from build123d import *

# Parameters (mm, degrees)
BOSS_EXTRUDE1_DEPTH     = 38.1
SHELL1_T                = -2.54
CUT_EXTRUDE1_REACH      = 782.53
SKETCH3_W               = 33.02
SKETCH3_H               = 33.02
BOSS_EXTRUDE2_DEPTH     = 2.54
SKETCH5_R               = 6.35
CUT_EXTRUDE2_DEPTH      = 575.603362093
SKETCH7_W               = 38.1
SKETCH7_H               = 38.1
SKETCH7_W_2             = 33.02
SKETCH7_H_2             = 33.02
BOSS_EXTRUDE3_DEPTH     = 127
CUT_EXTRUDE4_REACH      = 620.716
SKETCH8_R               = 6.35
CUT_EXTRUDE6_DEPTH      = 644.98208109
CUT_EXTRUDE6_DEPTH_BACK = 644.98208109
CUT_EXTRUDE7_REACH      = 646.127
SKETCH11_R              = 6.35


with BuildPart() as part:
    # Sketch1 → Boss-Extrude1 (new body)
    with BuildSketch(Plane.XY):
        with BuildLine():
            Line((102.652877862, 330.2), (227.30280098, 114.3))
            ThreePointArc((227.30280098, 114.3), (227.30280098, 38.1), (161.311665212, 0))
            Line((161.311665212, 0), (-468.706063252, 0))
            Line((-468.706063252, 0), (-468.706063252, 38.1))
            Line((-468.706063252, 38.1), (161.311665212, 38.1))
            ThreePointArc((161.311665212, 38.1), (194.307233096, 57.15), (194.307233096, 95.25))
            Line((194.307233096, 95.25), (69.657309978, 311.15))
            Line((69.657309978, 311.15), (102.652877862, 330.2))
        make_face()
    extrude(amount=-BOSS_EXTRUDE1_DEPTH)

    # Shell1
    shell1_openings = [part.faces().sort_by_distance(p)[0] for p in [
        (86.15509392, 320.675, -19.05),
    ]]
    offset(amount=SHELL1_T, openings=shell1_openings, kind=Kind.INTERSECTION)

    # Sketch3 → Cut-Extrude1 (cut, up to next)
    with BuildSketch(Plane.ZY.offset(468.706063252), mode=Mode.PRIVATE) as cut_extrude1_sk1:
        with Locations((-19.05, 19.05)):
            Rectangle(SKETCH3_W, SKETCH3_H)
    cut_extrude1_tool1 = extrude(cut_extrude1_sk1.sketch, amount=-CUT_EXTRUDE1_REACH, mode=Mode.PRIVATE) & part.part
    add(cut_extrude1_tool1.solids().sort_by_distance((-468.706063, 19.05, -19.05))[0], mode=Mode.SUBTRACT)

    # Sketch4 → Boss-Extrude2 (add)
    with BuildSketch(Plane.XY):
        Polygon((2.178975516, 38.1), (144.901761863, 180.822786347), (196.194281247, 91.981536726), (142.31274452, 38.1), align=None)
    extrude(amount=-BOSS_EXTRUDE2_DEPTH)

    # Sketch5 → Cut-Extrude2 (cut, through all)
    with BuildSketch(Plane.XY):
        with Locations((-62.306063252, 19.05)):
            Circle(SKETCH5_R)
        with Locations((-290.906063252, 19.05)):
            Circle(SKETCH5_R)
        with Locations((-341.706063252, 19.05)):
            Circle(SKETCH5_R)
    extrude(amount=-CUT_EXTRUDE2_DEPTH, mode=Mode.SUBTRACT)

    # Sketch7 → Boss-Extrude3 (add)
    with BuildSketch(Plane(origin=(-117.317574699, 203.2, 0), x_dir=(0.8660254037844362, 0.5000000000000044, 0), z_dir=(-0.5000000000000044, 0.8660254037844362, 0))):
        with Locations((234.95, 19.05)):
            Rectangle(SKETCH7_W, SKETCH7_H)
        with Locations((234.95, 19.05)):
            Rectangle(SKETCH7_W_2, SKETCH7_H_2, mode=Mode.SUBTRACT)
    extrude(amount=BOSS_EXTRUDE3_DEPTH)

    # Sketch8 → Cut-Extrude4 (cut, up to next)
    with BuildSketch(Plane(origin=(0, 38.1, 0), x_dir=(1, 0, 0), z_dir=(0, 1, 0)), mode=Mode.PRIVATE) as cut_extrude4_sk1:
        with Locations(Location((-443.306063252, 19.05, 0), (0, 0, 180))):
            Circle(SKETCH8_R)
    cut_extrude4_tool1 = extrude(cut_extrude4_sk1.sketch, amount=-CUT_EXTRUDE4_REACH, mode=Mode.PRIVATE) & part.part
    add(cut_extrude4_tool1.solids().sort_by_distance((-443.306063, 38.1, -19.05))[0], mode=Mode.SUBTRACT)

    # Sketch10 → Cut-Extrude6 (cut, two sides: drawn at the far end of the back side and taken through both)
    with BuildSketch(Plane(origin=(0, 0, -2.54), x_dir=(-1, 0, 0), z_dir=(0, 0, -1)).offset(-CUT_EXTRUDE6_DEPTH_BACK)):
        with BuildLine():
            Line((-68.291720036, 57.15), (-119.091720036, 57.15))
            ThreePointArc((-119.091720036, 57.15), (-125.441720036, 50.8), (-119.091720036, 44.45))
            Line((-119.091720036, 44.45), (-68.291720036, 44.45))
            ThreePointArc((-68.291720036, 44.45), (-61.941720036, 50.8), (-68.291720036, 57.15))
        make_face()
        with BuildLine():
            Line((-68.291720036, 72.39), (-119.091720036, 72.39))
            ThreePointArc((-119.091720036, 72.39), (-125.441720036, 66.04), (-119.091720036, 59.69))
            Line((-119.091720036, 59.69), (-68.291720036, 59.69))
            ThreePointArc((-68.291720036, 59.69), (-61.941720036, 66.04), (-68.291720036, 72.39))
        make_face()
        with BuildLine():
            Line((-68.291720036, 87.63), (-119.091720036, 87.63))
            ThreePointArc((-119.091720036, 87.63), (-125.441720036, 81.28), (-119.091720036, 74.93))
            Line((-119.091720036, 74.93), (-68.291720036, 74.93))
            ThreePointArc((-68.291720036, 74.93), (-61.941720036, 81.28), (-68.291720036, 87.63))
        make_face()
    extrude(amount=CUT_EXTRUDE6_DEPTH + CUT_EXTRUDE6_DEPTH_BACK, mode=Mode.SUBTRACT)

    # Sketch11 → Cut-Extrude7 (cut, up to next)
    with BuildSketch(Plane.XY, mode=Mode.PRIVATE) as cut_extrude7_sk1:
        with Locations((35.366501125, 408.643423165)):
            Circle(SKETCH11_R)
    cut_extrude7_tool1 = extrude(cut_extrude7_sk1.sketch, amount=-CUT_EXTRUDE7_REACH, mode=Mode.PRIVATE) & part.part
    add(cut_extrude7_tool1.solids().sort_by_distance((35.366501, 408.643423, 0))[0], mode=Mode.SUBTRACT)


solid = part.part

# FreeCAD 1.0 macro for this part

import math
import FreeCAD as App
import Part
import Sketcher
from FreeCAD import Vector
Q = App.Units.Quantity


def faces_at(feature, points):
    """Names of the faces that lie closest to the given points."""
    faces = feature.Shape.Faces
    near = lambda p: min(range(len(faces)), key=lambda i: faces[i].distToShape(Part.Vertex(*p))[0])
    return sorted({f"Face{near(p) + 1}" for p in points})

doc = App.newDocument("Part")
body = doc.addObject("PartDesign::Body", "Body")

sketch1 = doc.addObject("Sketcher::SketchObject", "Sketch")
body.addObject(sketch1)
sketch1.AttachmentSupport = (doc.XY_Plane, [""])
sketch1.MapMode = "FlatFace"
sketch1.addGeometry(Part.LineSegment(Vector(227, 114, 0), Vector(103, 330, 0)), False)
sketch1.addGeometry(Part.LineSegment(Vector(103, 330, 0), Vector(70, 311, 0)), False)
sketch1.addGeometry(Part.LineSegment(Vector(70, 311, 0), Vector(194, 95, 0)), False)
sketch1.addGeometry(Part.ArcOfCircle(Part.Circle(Vector(161, 76, 0), Vector(0, 0, 1), 38), math.radians(-90), math.radians(30)), False)
sketch1.addGeometry(Part.LineSegment(Vector(161, 38, 0), Vector(-469, 38, 0)), False)
sketch1.addGeometry(Part.LineSegment(Vector(-469, 38, 0), Vector(-469, 0, 0)), False)
sketch1.addGeometry(Part.LineSegment(Vector(-469, 0, 0), Vector(161, 0, 0)), False)
sketch1.addGeometry(Part.ArcOfCircle(Part.Circle(Vector(161, 76, 0), Vector(0, 0, 1), 76), math.radians(-90), math.radians(30)), False)
sketch1.addConstraint(Sketcher.Constraint("Coincident", 0, 2, 1, 1))
sketch1.addConstraint(Sketcher.Constraint("Coincident", 1, 2, 2, 1))
sketch1.addConstraint(Sketcher.Constraint("Tangent", 2, 2, 3, 2))
sketch1.addConstraint(Sketcher.Constraint("Tangent", 3, 1, 4, 1))
sketch1.addConstraint(Sketcher.Constraint("Coincident", 4, 2, 5, 1))
sketch1.addConstraint(Sketcher.Constraint("Coincident", 5, 2, 6, 1))
sketch1.addConstraint(Sketcher.Constraint("Tangent", 6, 2, 7, 1))
sketch1.addConstraint(Sketcher.Constraint("Tangent", 7, 2, 0, 1))
sketch1.addConstraint(Sketcher.Constraint("Horizontal", 4))
sketch1.addConstraint(Sketcher.Constraint("Vertical", 5))
sketch1.addConstraint(Sketcher.Constraint("Horizontal", 6))
sketch1.addConstraint(Sketcher.Constraint("Coincident", 7, 3, 3, 3))
sketch1.addConstraint(Sketcher.Constraint("PointOnObject", 5, 2, -1))
sketch1.addConstraint(Sketcher.Constraint("Perpendicular", 0, 1))
sketch1.addConstraint(Sketcher.Constraint("Perpendicular", 1, 2))
sketch1.addConstraint(Sketcher.Constraint("Radius", 7, Q("3 in")))
sketch1.addConstraint(Sketcher.Constraint("Radius", 3, Q("1.5 in")))
sketch1.addConstraint(Sketcher.Constraint("DistanceY", -1, 1, 0, 2, Q("13 in")))
sketch1.addConstraint(Sketcher.Constraint("Angle", 0, Q("120 deg")))
sketch1.addConstraint(Sketcher.Constraint("DistanceX", 4, 2, 4, 1, Q("630.017728 mm")))
sketch1.addConstraint(Sketcher.Constraint("DistanceX", -1, 1, 7, 2, Q("227.302801 mm")))
pad1 = doc.addObject("PartDesign::Pad", "Pad")
body.addObject(pad1)
pad1.Profile = sketch1
pad1.Length = Q("1.5 in")
pad1.Reversed = True
doc.recompute()

thickness = doc.addObject("PartDesign::Thickness", "Thickness")
body.addObject(thickness)
thickness.Base = (pad1, faces_at(pad1, [(86.155, 320.675, -19.05)]))
thickness.Value = Q("0.1 in")
thickness.Reversed = True
thickness.Join = "Intersection"

sketch2 = doc.addObject("Sketcher::SketchObject", "Sketch001")
body.addObject(sketch2)
sketch2.AttachmentSupport = (doc.YZ_Plane, [""])
sketch2.MapMode = "FlatFace"
sketch2.AttachmentOffset = App.Placement(Vector(0, 0, -468.706063), App.Rotation())
sketch2.addGeometry(Part.LineSegment(Vector(36, -36, 0), Vector(3, -36, 0)), False)
sketch2.addGeometry(Part.LineSegment(Vector(3, -36, 0), Vector(3, -3, 0)), False)
sketch2.addGeometry(Part.LineSegment(Vector(3, -3, 0), Vector(36, -3, 0)), False)
sketch2.addGeometry(Part.LineSegment(Vector(36, -3, 0), Vector(36, -36, 0)), False)
sketch2.addConstraint(Sketcher.Constraint("Coincident", 0, 2, 1, 1))
sketch2.addConstraint(Sketcher.Constraint("Coincident", 1, 2, 2, 1))
sketch2.addConstraint(Sketcher.Constraint("Coincident", 2, 2, 3, 1))
sketch2.addConstraint(Sketcher.Constraint("Coincident", 3, 2, 0, 1))
sketch2.addConstraint(Sketcher.Constraint("Horizontal", 0))
sketch2.addConstraint(Sketcher.Constraint("Vertical", 1))
sketch2.addConstraint(Sketcher.Constraint("Horizontal", 2))
sketch2.addConstraint(Sketcher.Constraint("Vertical", 3))
sketch2.addConstraint(Sketcher.Constraint("Equal", 2, 1))
sketch2.addConstraint(Sketcher.Constraint("DistanceX", 0, 2, 0, 1, Q("1.3 in")))
sketch2.addConstraint(Sketcher.Constraint("DistanceX", -1, 1, 0, 2, Q("0.1 in")))
sketch2.addConstraint(Sketcher.Constraint("DistanceY", 0, 2, -1, 1, Q("1.4 in")))
pocket1 = doc.addObject("PartDesign::Pocket", "Pocket")
body.addObject(pocket1)
pocket1.Profile = sketch2
pocket1.Type = "UpToFirst"
pocket1.Reversed = True

sketch3 = doc.addObject("Sketcher::SketchObject", "Sketch002")
body.addObject(sketch3)
sketch3.AttachmentSupport = (doc.XY_Plane, [""])
sketch3.MapMode = "FlatFace"
sketch3.addGeometry(Part.LineSegment(Vector(145, 181, 0), Vector(2, 38, 0)), False)
sketch3.addGeometry(Part.LineSegment(Vector(2, 38, 0), Vector(142, 38, 0)), False)
sketch3.addGeometry(Part.LineSegment(Vector(142, 38, 0), Vector(196, 92, 0)), False)
sketch3.addGeometry(Part.LineSegment(Vector(196, 92, 0), Vector(145, 181, 0)), False)
sketch3.addConstraint(Sketcher.Constraint("Coincident", 0, 2, 1, 1))
sketch3.addConstraint(Sketcher.Constraint("Coincident", 1, 2, 2, 1))
sketch3.addConstraint(Sketcher.Constraint("Coincident", 2, 2, 3, 1))
sketch3.addConstraint(Sketcher.Constraint("Coincident", 3, 2, 0, 1))
sketch3.addConstraint(Sketcher.Constraint("Horizontal", 1))
sketch3.addConstraint(Sketcher.Constraint("Parallel", 0, 2))
sketch3.addConstraint(Sketcher.Constraint("Distance", 2, Q("3 in")))
sketch3.addConstraint(Sketcher.Constraint("Angle", 0, Q("-135 deg")))
sketch3.addConstraint(Sketcher.Constraint("Angle", 3, Q("120 deg")))
sketch3.addConstraint(Sketcher.Constraint("DistanceY", -1, 1, 0, 2, Q("1.5 in")))
sketch3.addConstraint(Sketcher.Constraint("Distance", 0, Q("201.8405 mm")))
sketch3.addConstraint(Sketcher.Constraint("DistanceX", -1, 1, 2, 2, Q("196.194281 mm")))
pad2 = doc.addObject("PartDesign::Pad", "Pad001")
body.addObject(pad2)
pad2.Profile = sketch3
pad2.Length = Q("0.1 in")
pad2.Reversed = True

sketch4 = doc.addObject("Sketcher::SketchObject", "Sketch003")
body.addObject(sketch4)
sketch4.AttachmentSupport = (doc.XY_Plane, [""])
sketch4.MapMode = "FlatFace"
sketch4.addGeometry(Part.Circle(Vector(-62, 19, 0), Vector(0, 0, 1), 6), False)
sketch4.addGeometry(Part.Circle(Vector(-291, 19, 0), Vector(0, 0, 1), 6), False)
sketch4.addGeometry(Part.Circle(Vector(-342, 19, 0), Vector(0, 0, 1), 6), False)
sketch4.addConstraint(Sketcher.Constraint("Equal", 0, 1))
sketch4.addConstraint(Sketcher.Constraint("Equal", 1, 2))
sketch4.addConstraint(Sketcher.Constraint("Horizontal", 0, 3, 1, 3))
sketch4.addConstraint(Sketcher.Constraint("Horizontal", 1, 3, 2, 3))
sketch4.addConstraint(Sketcher.Constraint("Diameter", 0, Q("0.5 in")))
sketch4.addConstraint(Sketcher.Constraint("DistanceX", 1, 3, 0, 3, Q("9 in")))
sketch4.addConstraint(Sketcher.Constraint("DistanceX", 2, 3, 1, 3, Q("2 in")))
sketch4.addConstraint(Sketcher.Constraint("DistanceY", -1, 1, 0, 3, Q("0.75 in")))
sketch4.addConstraint(Sketcher.Constraint("DistanceX", 0, 3, -1, 1, Q("62.306063 mm")))
pocket2 = doc.addObject("PartDesign::Pocket", "Pocket001")
body.addObject(pocket2)
pocket2.Profile = sketch4
pocket2.Type = "ThroughAll"

sketch5 = doc.addObject("Sketcher::SketchObject", "Sketch004")
body.addObject(sketch5)
sketch5.Placement = App.Placement(Vector(-117.317575, 203.2, 0), App.Rotation(Vector(0.866025404, 0.5, 0), Vector(0, 0, -1), Vector(-0.5, 0.866025404, 0), "ZXY"))
sketch5.addGeometry(Part.LineSegment(Vector(216, 38, 0), Vector(216, 0, 0)), False)
sketch5.addGeometry(Part.LineSegment(Vector(216, 0, 0), Vector(254, 0, 0)), False)
sketch5.addGeometry(Part.LineSegment(Vector(254, 0, 0), Vector(254, 38, 0)), False)
sketch5.addGeometry(Part.LineSegment(Vector(254, 38, 0), Vector(216, 38, 0)), False)
sketch5.addGeometry(Part.LineSegment(Vector(251, 3, 0), Vector(218, 3, 0)), False)
sketch5.addGeometry(Part.LineSegment(Vector(218, 3, 0), Vector(218, 36, 0)), False)
sketch5.addGeometry(Part.LineSegment(Vector(218, 36, 0), Vector(251, 36, 0)), False)
sketch5.addGeometry(Part.LineSegment(Vector(251, 36, 0), Vector(251, 3, 0)), False)
sketch5.addConstraint(Sketcher.Constraint("Coincident", 0, 2, 1, 1))
sketch5.addConstraint(Sketcher.Constraint("Coincident", 1, 2, 2, 1))
sketch5.addConstraint(Sketcher.Constraint("Coincident", 2, 2, 3, 1))
sketch5.addConstraint(Sketcher.Constraint("Coincident", 3, 2, 0, 1))
sketch5.addConstraint(Sketcher.Constraint("Coincident", 4, 2, 5, 1))
sketch5.addConstraint(Sketcher.Constraint("Coincident", 5, 2, 6, 1))
sketch5.addConstraint(Sketcher.Constraint("Coincident", 6, 2, 7, 1))
sketch5.addConstraint(Sketcher.Constraint("Coincident", 7, 2, 4, 1))
sketch5.addConstraint(Sketcher.Constraint("Vertical", 0))
sketch5.addConstraint(Sketcher.Constraint("Horizontal", 1))
sketch5.addConstraint(Sketcher.Constraint("Vertical", 2))
sketch5.addConstraint(Sketcher.Constraint("Horizontal", 3))
sketch5.addConstraint(Sketcher.Constraint("Horizontal", 4))
sketch5.addConstraint(Sketcher.Constraint("Vertical", 5))
sketch5.addConstraint(Sketcher.Constraint("Horizontal", 6))
sketch5.addConstraint(Sketcher.Constraint("Vertical", 7))
sketch5.addConstraint(Sketcher.Constraint("PointOnObject", 0, 2, -1))
sketch5.addConstraint(Sketcher.Constraint("Equal", 3, 0))
sketch5.addConstraint(Sketcher.Constraint("Equal", 6, 5))
sketch5.addConstraint(Sketcher.Constraint("DistanceX", 1, 1, 1, 2, Q("1.5 in")))
sketch5.addConstraint(Sketcher.Constraint("DistanceX", 4, 2, 4, 1, Q("1.3 in")))
sketch5.addConstraint(Sketcher.Constraint("DistanceX", -1, 1, 1, 2, Q("10 in")))
sketch5.addConstraint(Sketcher.Constraint("DistanceX", -1, 1, 4, 2, Q("8.6 in")))
sketch5.addConstraint(Sketcher.Constraint("DistanceY", -1, 1, 4, 2, Q("0.1 in")))
pad3 = doc.addObject("PartDesign::Pad", "Pad002")
body.addObject(pad3)
pad3.Profile = sketch5
pad3.Length = Q("5 in")

sketch6 = doc.addObject("Sketcher::SketchObject", "Sketch005")
body.addObject(sketch6)
sketch6.AttachmentSupport = (doc.XZ_Plane, [""])
sketch6.MapMode = "FlatFace"
sketch6.AttachmentOffset = App.Placement(Vector(0, 0, -1.5 * 25.4), App.Rotation())
sketch6.addGeometry(Part.Circle(Vector(-443, -19, 0), Vector(0, 0, 1), 6), False)
sketch6.addConstraint(Sketcher.Constraint("Diameter", 0, Q("0.5 in")))
sketch6.addConstraint(Sketcher.Constraint("DistanceY", 0, 3, -1, 1, Q("0.75 in")))
sketch6.addConstraint(Sketcher.Constraint("DistanceX", 0, 3, -1, 1, Q("443.306063 mm")))
pocket3 = doc.addObject("PartDesign::Pocket", "Pocket002")
body.addObject(pocket3)
pocket3.Profile = sketch6
pocket3.Type = "UpToFirst"
pocket3.Reversed = True

sketch7 = doc.addObject("Sketcher::SketchObject", "Sketch006")
body.addObject(sketch7)
sketch7.AttachmentSupport = (doc.XY_Plane, [""])
sketch7.MapMode = "FlatFace"
sketch7.AttachmentOffset = App.Placement(Vector(0, 0, -0.1 * 25.4), App.Rotation())
sketch7.addGeometry(Part.LineSegment(Vector(68, 57, 0), Vector(119, 57, 0)), False)
sketch7.addGeometry(Part.ArcOfCircle(Part.Circle(Vector(119, 51, 0), Vector(0, 0, 1), 6), math.radians(-90), math.radians(90)), False)
sketch7.addGeometry(Part.LineSegment(Vector(119, 44, 0), Vector(68, 44, 0)), False)
sketch7.addGeometry(Part.ArcOfCircle(Part.Circle(Vector(68, 51, 0), Vector(0, 0, 1), 6), math.radians(90), math.radians(270)), False)
sketch7.addGeometry(Part.LineSegment(Vector(68, 72, 0), Vector(119, 72, 0)), False)
sketch7.addGeometry(Part.ArcOfCircle(Part.Circle(Vector(119, 66, 0), Vector(0, 0, 1), 6), math.radians(-90), math.radians(90)), False)
sketch7.addGeometry(Part.LineSegment(Vector(119, 60, 0), Vector(68, 60, 0)), False)
sketch7.addGeometry(Part.ArcOfCircle(Part.Circle(Vector(68, 66, 0), Vector(0, 0, 1), 6), math.radians(90), math.radians(270)), False)
sketch7.addGeometry(Part.LineSegment(Vector(68, 88, 0), Vector(119, 88, 0)), False)
sketch7.addGeometry(Part.ArcOfCircle(Part.Circle(Vector(119, 81, 0), Vector(0, 0, 1), 6), math.radians(-90), math.radians(90)), False)
sketch7.addGeometry(Part.LineSegment(Vector(119, 75, 0), Vector(68, 75, 0)), False)
sketch7.addGeometry(Part.ArcOfCircle(Part.Circle(Vector(68, 81, 0), Vector(0, 0, 1), 6), math.radians(90), math.radians(270)), False)
sketch7.addConstraint(Sketcher.Constraint("Tangent", 0, 2, 1, 2))
sketch7.addConstraint(Sketcher.Constraint("Tangent", 1, 1, 2, 1))
sketch7.addConstraint(Sketcher.Constraint("Tangent", 2, 2, 3, 2))
sketch7.addConstraint(Sketcher.Constraint("Tangent", 3, 1, 0, 1))
sketch7.addConstraint(Sketcher.Constraint("Tangent", 4, 2, 5, 2))
sketch7.addConstraint(Sketcher.Constraint("Tangent", 5, 1, 6, 1))
sketch7.addConstraint(Sketcher.Constraint("Tangent", 6, 2, 7, 2))
sketch7.addConstraint(Sketcher.Constraint("Tangent", 7, 1, 4, 1))
sketch7.addConstraint(Sketcher.Constraint("Tangent", 8, 2, 9, 2))
sketch7.addConstraint(Sketcher.Constraint("Tangent", 9, 1, 10, 1))
sketch7.addConstraint(Sketcher.Constraint("Tangent", 10, 2, 11, 2))
sketch7.addConstraint(Sketcher.Constraint("Tangent", 11, 1, 8, 1))
sketch7.addConstraint(Sketcher.Constraint("Horizontal", 0))
sketch7.addConstraint(Sketcher.Constraint("Horizontal", 2))
sketch7.addConstraint(Sketcher.Constraint("Horizontal", 4))
sketch7.addConstraint(Sketcher.Constraint("Horizontal", 6))
sketch7.addConstraint(Sketcher.Constraint("Horizontal", 8))
sketch7.addConstraint(Sketcher.Constraint("Horizontal", 10))
sketch7.addConstraint(Sketcher.Constraint("Equal", 3, 5))
sketch7.addConstraint(Sketcher.Constraint("Equal", 7, 9))
sketch7.addConstraint(Sketcher.Constraint("Vertical", 1, 3, 5, 3))
sketch7.addConstraint(Sketcher.Constraint("Vertical", 3, 3, 7, 3))
sketch7.addConstraint(Sketcher.Constraint("Vertical", 5, 3, 9, 3))
sketch7.addConstraint(Sketcher.Constraint("Vertical", 7, 3, 11, 3))
sketch7.addConstraint(Sketcher.Constraint("DistanceX", 0, 1, 0, 2, Q("2 in")))
sketch7.addConstraint(Sketcher.Constraint("Radius", 1, Q("0.25 in")))
sketch7.addConstraint(Sketcher.Constraint("DistanceY", -1, 1, 1, 3, Q("2 in")))
sketch7.addConstraint(Sketcher.Constraint("DistanceY", -1, 1, 5, 3, Q("2.6 in")))
sketch7.addConstraint(Sketcher.Constraint("DistanceY", -1, 1, 9, 3, Q("3.2 in")))
sketch7.addConstraint(Sketcher.Constraint("DistanceX", -1, 1, 1, 3, Q("119.09172 mm")))
pocket4 = doc.addObject("PartDesign::Pocket", "Pocket003")
body.addObject(pocket4)
pocket4.Profile = sketch7
pocket4.Type = "ThroughAll"
pocket4.Midplane = True

sketch8 = doc.addObject("Sketcher::SketchObject", "Sketch007")
body.addObject(sketch8)
sketch8.AttachmentSupport = (doc.XY_Plane, [""])
sketch8.MapMode = "FlatFace"
sketch8.addGeometry(Part.Circle(Vector(35, 409, 0), Vector(0, 0, 1), 6), False)
sketch8.addConstraint(Sketcher.Constraint("Diameter", 0, Q("0.5 in")))
sketch8.addConstraint(Sketcher.Constraint("DistanceX", -1, 1, 0, 3, Q("35.366501 mm")))
sketch8.addConstraint(Sketcher.Constraint("DistanceY", -1, 1, 0, 3, Q("408.643423 mm")))
pocket5 = doc.addObject("PartDesign::Pocket", "Pocket004")
body.addObject(pocket5)
pocket5.Profile = sketch8
pocket5.Type = "UpToFirst"

doc.recompute()
